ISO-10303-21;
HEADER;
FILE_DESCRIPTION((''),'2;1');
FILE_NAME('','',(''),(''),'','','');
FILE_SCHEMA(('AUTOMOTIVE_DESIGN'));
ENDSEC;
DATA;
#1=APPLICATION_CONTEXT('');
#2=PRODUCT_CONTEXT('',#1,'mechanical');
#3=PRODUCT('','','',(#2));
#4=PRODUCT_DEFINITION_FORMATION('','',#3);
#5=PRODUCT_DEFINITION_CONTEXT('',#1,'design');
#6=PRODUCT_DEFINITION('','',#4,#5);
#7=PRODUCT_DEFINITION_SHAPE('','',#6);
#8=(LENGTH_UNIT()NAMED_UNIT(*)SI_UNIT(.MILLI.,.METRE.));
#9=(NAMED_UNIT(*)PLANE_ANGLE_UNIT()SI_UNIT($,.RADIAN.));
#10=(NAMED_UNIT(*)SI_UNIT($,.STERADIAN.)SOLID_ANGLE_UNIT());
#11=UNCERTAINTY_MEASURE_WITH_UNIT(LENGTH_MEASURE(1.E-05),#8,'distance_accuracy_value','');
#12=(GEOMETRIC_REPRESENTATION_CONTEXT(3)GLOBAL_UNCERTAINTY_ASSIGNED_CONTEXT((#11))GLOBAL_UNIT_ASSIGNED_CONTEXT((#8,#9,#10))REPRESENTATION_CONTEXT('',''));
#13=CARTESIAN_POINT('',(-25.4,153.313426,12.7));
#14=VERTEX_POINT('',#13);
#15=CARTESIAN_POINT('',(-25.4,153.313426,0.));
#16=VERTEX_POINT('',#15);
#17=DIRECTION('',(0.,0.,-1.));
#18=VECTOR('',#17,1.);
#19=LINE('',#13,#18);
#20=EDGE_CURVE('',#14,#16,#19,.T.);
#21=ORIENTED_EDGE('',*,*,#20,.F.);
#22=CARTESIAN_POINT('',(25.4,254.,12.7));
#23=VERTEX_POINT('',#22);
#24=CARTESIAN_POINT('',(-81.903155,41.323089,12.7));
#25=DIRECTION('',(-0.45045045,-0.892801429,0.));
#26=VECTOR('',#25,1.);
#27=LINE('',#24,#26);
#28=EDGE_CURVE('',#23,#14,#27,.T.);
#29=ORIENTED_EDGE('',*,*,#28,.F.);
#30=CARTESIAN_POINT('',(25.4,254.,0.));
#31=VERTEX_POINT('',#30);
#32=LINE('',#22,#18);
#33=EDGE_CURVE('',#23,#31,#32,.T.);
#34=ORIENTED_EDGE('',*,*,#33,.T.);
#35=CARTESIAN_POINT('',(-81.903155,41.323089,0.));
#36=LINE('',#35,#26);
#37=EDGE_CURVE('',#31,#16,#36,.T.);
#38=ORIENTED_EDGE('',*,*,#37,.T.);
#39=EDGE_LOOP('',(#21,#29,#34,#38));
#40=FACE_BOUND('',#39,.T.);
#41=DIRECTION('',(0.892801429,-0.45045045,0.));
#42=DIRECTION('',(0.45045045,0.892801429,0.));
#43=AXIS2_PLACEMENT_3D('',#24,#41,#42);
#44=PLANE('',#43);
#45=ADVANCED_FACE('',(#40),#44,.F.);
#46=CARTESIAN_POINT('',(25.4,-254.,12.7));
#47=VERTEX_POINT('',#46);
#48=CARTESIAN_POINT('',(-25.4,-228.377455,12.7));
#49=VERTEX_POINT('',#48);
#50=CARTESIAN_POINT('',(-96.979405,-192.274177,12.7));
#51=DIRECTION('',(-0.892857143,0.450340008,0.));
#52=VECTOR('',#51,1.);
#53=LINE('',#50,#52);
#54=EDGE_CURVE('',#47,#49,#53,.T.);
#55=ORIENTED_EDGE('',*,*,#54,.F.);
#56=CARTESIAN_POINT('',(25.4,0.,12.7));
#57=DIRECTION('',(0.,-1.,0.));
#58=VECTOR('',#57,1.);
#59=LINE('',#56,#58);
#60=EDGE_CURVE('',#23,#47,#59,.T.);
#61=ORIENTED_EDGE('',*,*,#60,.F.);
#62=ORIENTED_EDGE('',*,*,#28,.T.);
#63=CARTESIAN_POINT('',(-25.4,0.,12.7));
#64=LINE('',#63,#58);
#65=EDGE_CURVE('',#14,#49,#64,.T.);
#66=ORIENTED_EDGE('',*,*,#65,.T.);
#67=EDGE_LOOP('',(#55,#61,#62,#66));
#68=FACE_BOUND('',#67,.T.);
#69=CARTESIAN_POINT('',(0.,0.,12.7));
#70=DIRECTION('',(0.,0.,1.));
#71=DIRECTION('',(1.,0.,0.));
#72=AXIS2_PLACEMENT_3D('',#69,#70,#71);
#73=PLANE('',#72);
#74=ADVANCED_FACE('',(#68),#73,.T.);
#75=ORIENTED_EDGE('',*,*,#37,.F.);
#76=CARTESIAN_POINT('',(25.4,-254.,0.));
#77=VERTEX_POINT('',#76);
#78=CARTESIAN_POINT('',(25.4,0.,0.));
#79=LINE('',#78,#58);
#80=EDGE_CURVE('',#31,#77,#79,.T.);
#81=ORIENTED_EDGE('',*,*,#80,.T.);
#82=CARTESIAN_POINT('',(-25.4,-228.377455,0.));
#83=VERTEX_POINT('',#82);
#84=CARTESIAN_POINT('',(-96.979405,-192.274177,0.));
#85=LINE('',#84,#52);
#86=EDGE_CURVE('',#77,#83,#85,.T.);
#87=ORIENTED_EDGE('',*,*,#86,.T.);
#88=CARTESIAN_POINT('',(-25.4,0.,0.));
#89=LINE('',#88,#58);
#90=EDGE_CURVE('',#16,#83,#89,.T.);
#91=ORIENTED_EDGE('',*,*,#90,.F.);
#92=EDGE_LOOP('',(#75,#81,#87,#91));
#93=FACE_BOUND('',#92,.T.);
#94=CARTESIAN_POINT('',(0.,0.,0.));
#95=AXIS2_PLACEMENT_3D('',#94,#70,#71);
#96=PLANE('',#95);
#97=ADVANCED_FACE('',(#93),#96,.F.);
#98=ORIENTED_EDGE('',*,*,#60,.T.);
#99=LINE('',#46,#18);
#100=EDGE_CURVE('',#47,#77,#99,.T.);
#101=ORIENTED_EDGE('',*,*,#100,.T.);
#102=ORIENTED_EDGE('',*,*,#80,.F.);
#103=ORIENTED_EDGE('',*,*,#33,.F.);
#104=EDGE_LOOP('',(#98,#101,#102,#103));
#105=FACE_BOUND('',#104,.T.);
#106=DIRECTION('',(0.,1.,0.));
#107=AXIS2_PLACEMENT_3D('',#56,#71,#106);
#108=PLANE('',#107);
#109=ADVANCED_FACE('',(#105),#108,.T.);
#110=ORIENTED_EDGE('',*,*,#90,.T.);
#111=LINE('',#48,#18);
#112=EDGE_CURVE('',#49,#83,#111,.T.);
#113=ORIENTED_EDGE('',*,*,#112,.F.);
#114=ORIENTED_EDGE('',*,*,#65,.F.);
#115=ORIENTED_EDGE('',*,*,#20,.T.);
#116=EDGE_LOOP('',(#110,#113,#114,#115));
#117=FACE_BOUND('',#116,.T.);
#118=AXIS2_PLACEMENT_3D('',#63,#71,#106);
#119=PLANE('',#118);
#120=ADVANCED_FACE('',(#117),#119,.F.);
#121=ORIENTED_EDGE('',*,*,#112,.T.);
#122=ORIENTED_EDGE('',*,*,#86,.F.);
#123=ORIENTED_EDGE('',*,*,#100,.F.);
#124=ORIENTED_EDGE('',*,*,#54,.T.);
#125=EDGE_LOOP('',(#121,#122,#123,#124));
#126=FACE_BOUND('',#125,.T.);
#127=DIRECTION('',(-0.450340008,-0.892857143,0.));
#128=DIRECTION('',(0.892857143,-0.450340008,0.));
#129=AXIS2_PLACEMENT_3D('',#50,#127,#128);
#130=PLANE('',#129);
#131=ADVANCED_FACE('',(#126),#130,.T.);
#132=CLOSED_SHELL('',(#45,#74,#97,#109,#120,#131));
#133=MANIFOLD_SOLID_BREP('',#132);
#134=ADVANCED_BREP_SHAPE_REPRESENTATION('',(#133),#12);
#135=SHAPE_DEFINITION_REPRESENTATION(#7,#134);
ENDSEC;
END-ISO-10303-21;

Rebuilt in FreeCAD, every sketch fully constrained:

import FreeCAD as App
import Part
import Sketcher
Q = App.Units.Quantity


def add_polygon(sketch, points):
    """Adds a closed chain of lines whose ends are joined by coincident constraints."""
    first, n = sketch.GeometryCount, len(points)
    for a, b in zip(points, points[1:] + points[:1]):
        sketch.addGeometry(Part.LineSegment(App.Vector(*a, 0), App.Vector(*b, 0)), False)
    for i in range(n):
        sketch.addConstraint(Sketcher.Constraint("Coincident", first + i, 2, first + (i + 1) % n, 1))

doc = App.newDocument("Part")
body = doc.addObject("PartDesign::Body", "Body")

# Sketch on XY plane
sketch1 = doc.addObject("Sketcher::SketchObject", "Sketch")
body.addObject(sketch1)
sketch1.AttachmentSupport = (doc.XY_Plane, [""])
sketch1.MapMode = "FlatFace"
add_polygon(sketch1, [(25, -254), (25, 254), (-25, 153), (-25, -228)])  # lines 0-3
sketch1.addConstraint([
    Sketcher.Constraint("Vertical", 0),
    Sketcher.Constraint("Vertical", 2),
    Sketcher.Constraint("DistanceY", 0, 1, 0, 2, Q("20 in")),
    Sketcher.Constraint("DistanceX", -1, 1, 0, 2, Q("1 in")),
    Sketcher.Constraint("DistanceY", -1, 1, 0, 2, Q("10 in")),
    Sketcher.Constraint("DistanceX", 1, 2, -1, 1, Q("1 in")),
    Sketcher.Constraint("Distance", 1, Q("4.44 in")),
    Sketcher.Constraint("Distance", 3, Q("2.24 in")),
])
pad1 = doc.addObject("PartDesign::Pad", "Pad")
body.addObject(pad1)
pad1.Profile = sketch1
pad1.Length = Q("0.5 in")

doc.recompute()
